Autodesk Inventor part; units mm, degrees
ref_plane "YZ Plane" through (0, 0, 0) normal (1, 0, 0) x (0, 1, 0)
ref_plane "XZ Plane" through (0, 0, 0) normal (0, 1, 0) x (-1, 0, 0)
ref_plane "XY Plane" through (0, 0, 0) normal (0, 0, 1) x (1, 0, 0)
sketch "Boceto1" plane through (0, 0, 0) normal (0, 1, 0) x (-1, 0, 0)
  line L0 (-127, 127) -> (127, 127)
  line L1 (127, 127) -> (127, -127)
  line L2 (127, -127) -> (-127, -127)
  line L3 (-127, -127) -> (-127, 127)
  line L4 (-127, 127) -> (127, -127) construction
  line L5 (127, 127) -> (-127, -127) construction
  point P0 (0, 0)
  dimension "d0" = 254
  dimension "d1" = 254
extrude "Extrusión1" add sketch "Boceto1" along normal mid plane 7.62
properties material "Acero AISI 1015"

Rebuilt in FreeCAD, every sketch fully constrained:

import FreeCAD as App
import Part
import Sketcher
from FreeCAD import Vector
Q = App.Units.Quantity

doc = App.newDocument("Part")
body = doc.addObject("PartDesign::Body", "Body")

# Sketch on XZ plane
sketch1 = body.newObject("Sketcher::SketchObject", "Sketch")
sketch1.AttachmentSupport = (doc.getObject("XZ_Plane"), [""])
sketch1.MapMode = "FlatFace"
sketch1.addGeometry([
    Part.LineSegment(Vector(-127, 127, 0), Vector(127, 127, 0)),
    Part.LineSegment(Vector(127, 127, 0), Vector(127, -127, 0)),
    Part.LineSegment(Vector(127, -127, 0), Vector(-127, -127, 0)),
    Part.LineSegment(Vector(-127, -127, 0), Vector(-127, 127, 0)),
], False)
sketch1.addConstraint([
    Sketcher.Constraint("Coincident", 0, 2, 1, 1),
    Sketcher.Constraint("Coincident", 1, 2, 2, 1),
    Sketcher.Constraint("Coincident", 2, 2, 3, 1),
    Sketcher.Constraint("Coincident", 3, 2, 0, 1),
    Sketcher.Constraint("Horizontal", 0),
    Sketcher.Constraint("Vertical", 1),
    Sketcher.Constraint("Horizontal", 2),
    Sketcher.Constraint("Vertical", 3),
    Sketcher.Constraint("Symmetric", 0, 2, 2, 2, -1, 1),
    Sketcher.Constraint("Equal", 2, 1),
    Sketcher.Constraint("DistanceX", 0, 1, 0, 2, Q("10 in")),
])
pad1 = body.newObject("PartDesign::Pad", "Pad")
pad1.Profile = sketch1
pad1.Length = Q("0.3 in")
pad1.Midplane = True

doc.recompute()
